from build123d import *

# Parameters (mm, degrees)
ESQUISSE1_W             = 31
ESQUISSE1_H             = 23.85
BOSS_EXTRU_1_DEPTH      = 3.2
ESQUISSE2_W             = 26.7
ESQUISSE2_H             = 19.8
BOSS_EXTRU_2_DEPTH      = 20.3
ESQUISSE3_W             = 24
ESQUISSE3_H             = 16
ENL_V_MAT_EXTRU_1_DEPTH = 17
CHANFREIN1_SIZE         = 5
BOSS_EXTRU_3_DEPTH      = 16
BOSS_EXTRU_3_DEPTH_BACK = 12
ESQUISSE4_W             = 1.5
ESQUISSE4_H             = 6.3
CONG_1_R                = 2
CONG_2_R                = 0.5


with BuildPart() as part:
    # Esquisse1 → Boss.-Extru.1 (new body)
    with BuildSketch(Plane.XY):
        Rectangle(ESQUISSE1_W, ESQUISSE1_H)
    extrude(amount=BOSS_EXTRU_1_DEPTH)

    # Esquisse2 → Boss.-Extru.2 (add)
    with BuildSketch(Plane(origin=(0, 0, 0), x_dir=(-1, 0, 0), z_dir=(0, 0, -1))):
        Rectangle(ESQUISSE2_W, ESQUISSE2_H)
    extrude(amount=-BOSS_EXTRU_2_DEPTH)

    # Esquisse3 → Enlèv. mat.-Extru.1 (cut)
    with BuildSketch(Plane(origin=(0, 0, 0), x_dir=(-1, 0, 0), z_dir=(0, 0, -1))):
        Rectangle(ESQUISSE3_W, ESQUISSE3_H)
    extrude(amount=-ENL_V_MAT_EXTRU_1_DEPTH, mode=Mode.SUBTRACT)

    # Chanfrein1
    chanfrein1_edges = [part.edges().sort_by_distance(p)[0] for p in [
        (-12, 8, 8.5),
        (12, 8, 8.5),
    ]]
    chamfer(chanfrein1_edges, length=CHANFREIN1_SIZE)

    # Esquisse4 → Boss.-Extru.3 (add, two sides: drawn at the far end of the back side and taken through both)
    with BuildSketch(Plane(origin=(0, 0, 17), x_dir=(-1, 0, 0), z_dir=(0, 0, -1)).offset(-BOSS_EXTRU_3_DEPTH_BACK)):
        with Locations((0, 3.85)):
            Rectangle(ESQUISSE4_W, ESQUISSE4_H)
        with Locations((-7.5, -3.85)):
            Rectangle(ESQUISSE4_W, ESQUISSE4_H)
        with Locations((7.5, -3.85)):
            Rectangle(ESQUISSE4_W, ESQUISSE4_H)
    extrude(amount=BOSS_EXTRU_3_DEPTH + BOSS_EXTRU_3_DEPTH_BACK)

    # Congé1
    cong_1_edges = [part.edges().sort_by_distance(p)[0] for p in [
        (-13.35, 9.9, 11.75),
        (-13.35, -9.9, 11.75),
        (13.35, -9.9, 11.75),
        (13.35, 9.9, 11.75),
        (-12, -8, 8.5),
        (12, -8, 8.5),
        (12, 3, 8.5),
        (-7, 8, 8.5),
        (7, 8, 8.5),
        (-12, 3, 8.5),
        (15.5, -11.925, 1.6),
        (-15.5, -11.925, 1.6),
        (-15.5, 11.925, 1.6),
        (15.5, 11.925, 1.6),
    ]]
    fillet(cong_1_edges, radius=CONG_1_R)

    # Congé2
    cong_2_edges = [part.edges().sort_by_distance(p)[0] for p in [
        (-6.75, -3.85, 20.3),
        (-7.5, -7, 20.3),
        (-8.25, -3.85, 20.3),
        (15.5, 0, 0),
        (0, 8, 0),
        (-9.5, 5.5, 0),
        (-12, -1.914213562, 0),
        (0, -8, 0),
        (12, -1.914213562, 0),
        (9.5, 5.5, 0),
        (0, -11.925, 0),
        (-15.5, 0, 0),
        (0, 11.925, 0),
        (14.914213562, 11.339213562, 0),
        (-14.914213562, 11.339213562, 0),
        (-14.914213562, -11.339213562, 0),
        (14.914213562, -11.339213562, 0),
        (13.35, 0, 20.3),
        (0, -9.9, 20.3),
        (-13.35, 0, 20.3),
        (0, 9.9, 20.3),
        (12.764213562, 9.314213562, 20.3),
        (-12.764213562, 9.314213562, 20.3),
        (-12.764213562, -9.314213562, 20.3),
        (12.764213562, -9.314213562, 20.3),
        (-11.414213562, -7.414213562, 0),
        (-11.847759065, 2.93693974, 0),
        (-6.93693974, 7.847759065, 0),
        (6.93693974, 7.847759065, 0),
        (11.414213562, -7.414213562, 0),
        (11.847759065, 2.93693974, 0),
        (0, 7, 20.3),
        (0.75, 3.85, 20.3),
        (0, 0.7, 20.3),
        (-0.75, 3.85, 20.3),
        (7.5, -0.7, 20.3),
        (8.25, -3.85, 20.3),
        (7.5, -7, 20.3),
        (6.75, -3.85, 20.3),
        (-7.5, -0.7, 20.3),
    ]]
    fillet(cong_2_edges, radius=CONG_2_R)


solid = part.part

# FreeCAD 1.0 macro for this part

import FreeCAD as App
import Part
import Sketcher
from FreeCAD import Vector


def edges_at(feature, points):
    """Names of the edges that pass closest to the given points."""
    edges = feature.Shape.Edges
    near = lambda p: min(range(len(edges)), key=lambda i: edges[i].distToShape(Part.Vertex(*p))[0])
    return sorted({f"Edge{near(p) + 1}" for p in points})


def add_polygon(sketch, points):
    """Adds a closed chain of lines whose ends are joined by coincident constraints."""
    first, n = sketch.GeometryCount, len(points)
    for a, b in zip(points, points[1:] + points[:1]):
        sketch.addGeometry(Part.LineSegment(App.Vector(*a, 0), App.Vector(*b, 0)), False)
    for i in range(n):
        sketch.addConstraint(Sketcher.Constraint("Coincident", first + i, 2, first + (i + 1) % n, 1))

doc = App.newDocument("Part")
body = doc.addObject("PartDesign::Body", "Body")

sketch1 = body.newObject("Sketcher::SketchObject", "Sketch")
sketch1.AttachmentSupport = (doc.getObject("XY_Plane"), [""])
sketch1.MapMode = "FlatFace"
add_polygon(sketch1, [(-15.5, 11.925), (-15.5, -11.925), (15.5, -11.925), (15.5, 11.925)])
sketch1.addConstraint([
    Sketcher.Constraint("Vertical", 0),
    Sketcher.Constraint("Horizontal", 1),
    Sketcher.Constraint("Vertical", 2),
    Sketcher.Constraint("Horizontal", 3),
    Sketcher.Constraint("Symmetric", 0, 2, 2, 2, -1, 1),
    Sketcher.Constraint("DistanceX", 1, 1, 1, 2, 31.0),
    Sketcher.Constraint("DistanceY", 0, 2, 0, 1, 23.85),
])
pad1 = body.newObject("PartDesign::Pad", "Pad")
pad1.Profile = sketch1
pad1.Length = 3.2

sketch2 = body.newObject("Sketcher::SketchObject", "Sketch001")
sketch2.AttachmentSupport = (doc.getObject("XY_Plane"), [""])
sketch2.MapMode = "FlatFace"
add_polygon(sketch2, [(13.35, 9.9), (13.35, -9.9), (-13.35, -9.9), (-13.35, 9.9)])
sketch2.addConstraint([
    Sketcher.Constraint("Vertical", 0),
    Sketcher.Constraint("Horizontal", 1),
    Sketcher.Constraint("Vertical", 2),
    Sketcher.Constraint("Horizontal", 3),
    Sketcher.Constraint("Symmetric", 0, 2, 2, 2, -1, 1),
    Sketcher.Constraint("DistanceX", 1, 2, 1, 1, 26.7),
    Sketcher.Constraint("DistanceY", 0, 2, 0, 1, 19.8),
])
pad2 = body.newObject("PartDesign::Pad", "Pad001")
pad2.Profile = sketch2
pad2.Length = 20.3

sketch3 = body.newObject("Sketcher::SketchObject", "Sketch002")
sketch3.AttachmentSupport = (doc.getObject("XY_Plane"), [""])
sketch3.MapMode = "FlatFace"
add_polygon(sketch3, [(12, 8), (12, -8), (-12, -8), (-12, 8)])
sketch3.addConstraint([
    Sketcher.Constraint("Vertical", 0),
    Sketcher.Constraint("Horizontal", 1),
    Sketcher.Constraint("Vertical", 2),
    Sketcher.Constraint("Horizontal", 3),
    Sketcher.Constraint("Symmetric", 0, 2, 2, 2, -1, 1),
    Sketcher.Constraint("DistanceX", 1, 2, 1, 1, 24.0),
    Sketcher.Constraint("DistanceY", 0, 2, 0, 1, 16.0),
])
pocket1 = body.newObject("PartDesign::Pocket", "Pocket")
pocket1.Profile = sketch3
pocket1.Length = 17
pocket1.Reversed = True
doc.recompute()

chamfer = body.newObject("PartDesign::Chamfer", "Chamfer")
chamfer.Base = (pocket1, edges_at(pocket1, [(-12, 8, 8.5), (12, 8, 8.5)]))
chamfer.Size = 5

sketch4 = body.newObject("Sketcher::SketchObject", "Sketch003")
sketch4.AttachmentSupport = (doc.getObject("XY_Plane"), [""])
sketch4.MapMode = "FlatFace"
sketch4.AttachmentOffset = App.Placement(Vector(0, 0, 17), App.Rotation())
add_polygon(sketch4, [(0.75, 7), (0.75, 0.7), (-0.75, 0.7), (-0.75, 7)])
add_polygon(sketch4, [(8.25, -0.7), (8.25, -7), (6.75, -7), (6.75, -0.7)])
add_polygon(sketch4, [(-6.75, -0.7), (-6.75, -7), (-8.25, -7), (-8.25, -0.7)])
sketch4.addConstraint([
    Sketcher.Constraint("Vertical", 0),
    Sketcher.Constraint("Horizontal", 1),
    Sketcher.Constraint("Vertical", 2),
    Sketcher.Constraint("Horizontal", 3),
    Sketcher.Constraint("Vertical", 4),
    Sketcher.Constraint("Horizontal", 5),
    Sketcher.Constraint("Vertical", 6),
    Sketcher.Constraint("Horizontal", 7),
    Sketcher.Constraint("Vertical", 8),
    Sketcher.Constraint("Horizontal", 9),
    Sketcher.Constraint("Vertical", 10),
    Sketcher.Constraint("Horizontal", 11),
    Sketcher.Constraint("Symmetric", 5, 2, 8, 2, -2),
    Sketcher.Constraint("Symmetric", 7, 2, 10, 2, -2),
    Sketcher.Constraint("Equal", 3, 5),
    Sketcher.Constraint("Equal", 2, 4),
    Sketcher.Constraint("DistanceX", 1, 2, 1, 1, 1.5),
    Sketcher.Constraint("DistanceY", 0, 2, 0, 1, 6.3),
    Sketcher.Constraint("DistanceY", -1, 1, 2, 2, 7.0),
    Sketcher.Constraint("DistanceY", 4, 2, -1, 1, 7.0),
    Sketcher.Constraint("DistanceX", 1, 2, 4, 2, 9.0),
    Sketcher.Constraint("DistanceX", 8, 2, 1, 2, 6.0),
])
pad3 = body.newObject("PartDesign::Pad", "Pad002")
pad3.Profile = sketch4
pad3.Type = "TwoLengths"
pad3.Length = 16
pad3.Length2 = 12
pad3.Reversed = True
doc.recompute()

fillet = body.newObject("PartDesign::Fillet", "Fillet")
fillet.Base = (pad3, edges_at(pad3, [
    (-13.35, 9.9, 11.75),
    (-13.35, -9.9, 11.75),
    (13.35, -9.9, 11.75),
    (13.35, 9.9, 11.75),
    (-12, -8, 8.5),
    (12, -8, 8.5),
    (12, 3, 8.5),
    (-7, 8, 8.5),
    (7, 8, 8.5),
    (-12, 3, 8.5),
    (15.5, -11.925, 1.6),
    (-15.5, -11.925, 1.6),
    (-15.5, 11.925, 1.6),
    (15.5, 11.925, 1.6),
]))
fillet.Radius = 2
doc.recompute()

fillet2 = body.newObject("PartDesign::Fillet", "Fillet001")
fillet2.Base = (fillet, edges_at(fillet, [
    (-6.75, -3.85, 20.3),
    (-7.5, -7, 20.3),
    (-8.25, -3.85, 20.3),
    (15.5, 0, 0),
    (0, 8, 0),
    (-9.5, 5.5, 0),
    (-12, -1.914, 0),
    (0, -8, 0),
    (12, -1.914, 0),
    (9.5, 5.5, 0),
    (0, -11.925, 0),
    (-15.5, 0, 0),
    (0, 11.925, 0),
    (14.914, 11.339, 0),
    (-14.914, 11.339, 0),
    (-14.914, -11.339, 0),
    (14.914, -11.339, 0),
    (13.35, 0, 20.3),
    (0, -9.9, 20.3),
    (-13.35, 0, 20.3),
    (0, 9.9, 20.3),
    (12.764, 9.314, 20.3),
    (-12.764, 9.314, 20.3),
    (-12.764, -9.314, 20.3),
    (12.764, -9.314, 20.3),
    (-11.414, -7.414, 0),
    (-11.848, 2.937, 0),
    (-6.937, 7.848, 0),
    (6.937, 7.848, 0),
    (11.414, -7.414, 0),
    (11.848, 2.937, 0),
    (0, 7, 20.3),
    (0.75, 3.85, 20.3),
    (0, 0.7, 20.3),
    (-0.75, 3.85, 20.3),
    (7.5, -0.7, 20.3),
    (8.25, -3.85, 20.3),
    (7.5, -7, 20.3),
    (6.75, -3.85, 20.3),
    (-7.5, -0.7, 20.3),
]))
fillet2.Radius = 0.5

doc.recompute()
